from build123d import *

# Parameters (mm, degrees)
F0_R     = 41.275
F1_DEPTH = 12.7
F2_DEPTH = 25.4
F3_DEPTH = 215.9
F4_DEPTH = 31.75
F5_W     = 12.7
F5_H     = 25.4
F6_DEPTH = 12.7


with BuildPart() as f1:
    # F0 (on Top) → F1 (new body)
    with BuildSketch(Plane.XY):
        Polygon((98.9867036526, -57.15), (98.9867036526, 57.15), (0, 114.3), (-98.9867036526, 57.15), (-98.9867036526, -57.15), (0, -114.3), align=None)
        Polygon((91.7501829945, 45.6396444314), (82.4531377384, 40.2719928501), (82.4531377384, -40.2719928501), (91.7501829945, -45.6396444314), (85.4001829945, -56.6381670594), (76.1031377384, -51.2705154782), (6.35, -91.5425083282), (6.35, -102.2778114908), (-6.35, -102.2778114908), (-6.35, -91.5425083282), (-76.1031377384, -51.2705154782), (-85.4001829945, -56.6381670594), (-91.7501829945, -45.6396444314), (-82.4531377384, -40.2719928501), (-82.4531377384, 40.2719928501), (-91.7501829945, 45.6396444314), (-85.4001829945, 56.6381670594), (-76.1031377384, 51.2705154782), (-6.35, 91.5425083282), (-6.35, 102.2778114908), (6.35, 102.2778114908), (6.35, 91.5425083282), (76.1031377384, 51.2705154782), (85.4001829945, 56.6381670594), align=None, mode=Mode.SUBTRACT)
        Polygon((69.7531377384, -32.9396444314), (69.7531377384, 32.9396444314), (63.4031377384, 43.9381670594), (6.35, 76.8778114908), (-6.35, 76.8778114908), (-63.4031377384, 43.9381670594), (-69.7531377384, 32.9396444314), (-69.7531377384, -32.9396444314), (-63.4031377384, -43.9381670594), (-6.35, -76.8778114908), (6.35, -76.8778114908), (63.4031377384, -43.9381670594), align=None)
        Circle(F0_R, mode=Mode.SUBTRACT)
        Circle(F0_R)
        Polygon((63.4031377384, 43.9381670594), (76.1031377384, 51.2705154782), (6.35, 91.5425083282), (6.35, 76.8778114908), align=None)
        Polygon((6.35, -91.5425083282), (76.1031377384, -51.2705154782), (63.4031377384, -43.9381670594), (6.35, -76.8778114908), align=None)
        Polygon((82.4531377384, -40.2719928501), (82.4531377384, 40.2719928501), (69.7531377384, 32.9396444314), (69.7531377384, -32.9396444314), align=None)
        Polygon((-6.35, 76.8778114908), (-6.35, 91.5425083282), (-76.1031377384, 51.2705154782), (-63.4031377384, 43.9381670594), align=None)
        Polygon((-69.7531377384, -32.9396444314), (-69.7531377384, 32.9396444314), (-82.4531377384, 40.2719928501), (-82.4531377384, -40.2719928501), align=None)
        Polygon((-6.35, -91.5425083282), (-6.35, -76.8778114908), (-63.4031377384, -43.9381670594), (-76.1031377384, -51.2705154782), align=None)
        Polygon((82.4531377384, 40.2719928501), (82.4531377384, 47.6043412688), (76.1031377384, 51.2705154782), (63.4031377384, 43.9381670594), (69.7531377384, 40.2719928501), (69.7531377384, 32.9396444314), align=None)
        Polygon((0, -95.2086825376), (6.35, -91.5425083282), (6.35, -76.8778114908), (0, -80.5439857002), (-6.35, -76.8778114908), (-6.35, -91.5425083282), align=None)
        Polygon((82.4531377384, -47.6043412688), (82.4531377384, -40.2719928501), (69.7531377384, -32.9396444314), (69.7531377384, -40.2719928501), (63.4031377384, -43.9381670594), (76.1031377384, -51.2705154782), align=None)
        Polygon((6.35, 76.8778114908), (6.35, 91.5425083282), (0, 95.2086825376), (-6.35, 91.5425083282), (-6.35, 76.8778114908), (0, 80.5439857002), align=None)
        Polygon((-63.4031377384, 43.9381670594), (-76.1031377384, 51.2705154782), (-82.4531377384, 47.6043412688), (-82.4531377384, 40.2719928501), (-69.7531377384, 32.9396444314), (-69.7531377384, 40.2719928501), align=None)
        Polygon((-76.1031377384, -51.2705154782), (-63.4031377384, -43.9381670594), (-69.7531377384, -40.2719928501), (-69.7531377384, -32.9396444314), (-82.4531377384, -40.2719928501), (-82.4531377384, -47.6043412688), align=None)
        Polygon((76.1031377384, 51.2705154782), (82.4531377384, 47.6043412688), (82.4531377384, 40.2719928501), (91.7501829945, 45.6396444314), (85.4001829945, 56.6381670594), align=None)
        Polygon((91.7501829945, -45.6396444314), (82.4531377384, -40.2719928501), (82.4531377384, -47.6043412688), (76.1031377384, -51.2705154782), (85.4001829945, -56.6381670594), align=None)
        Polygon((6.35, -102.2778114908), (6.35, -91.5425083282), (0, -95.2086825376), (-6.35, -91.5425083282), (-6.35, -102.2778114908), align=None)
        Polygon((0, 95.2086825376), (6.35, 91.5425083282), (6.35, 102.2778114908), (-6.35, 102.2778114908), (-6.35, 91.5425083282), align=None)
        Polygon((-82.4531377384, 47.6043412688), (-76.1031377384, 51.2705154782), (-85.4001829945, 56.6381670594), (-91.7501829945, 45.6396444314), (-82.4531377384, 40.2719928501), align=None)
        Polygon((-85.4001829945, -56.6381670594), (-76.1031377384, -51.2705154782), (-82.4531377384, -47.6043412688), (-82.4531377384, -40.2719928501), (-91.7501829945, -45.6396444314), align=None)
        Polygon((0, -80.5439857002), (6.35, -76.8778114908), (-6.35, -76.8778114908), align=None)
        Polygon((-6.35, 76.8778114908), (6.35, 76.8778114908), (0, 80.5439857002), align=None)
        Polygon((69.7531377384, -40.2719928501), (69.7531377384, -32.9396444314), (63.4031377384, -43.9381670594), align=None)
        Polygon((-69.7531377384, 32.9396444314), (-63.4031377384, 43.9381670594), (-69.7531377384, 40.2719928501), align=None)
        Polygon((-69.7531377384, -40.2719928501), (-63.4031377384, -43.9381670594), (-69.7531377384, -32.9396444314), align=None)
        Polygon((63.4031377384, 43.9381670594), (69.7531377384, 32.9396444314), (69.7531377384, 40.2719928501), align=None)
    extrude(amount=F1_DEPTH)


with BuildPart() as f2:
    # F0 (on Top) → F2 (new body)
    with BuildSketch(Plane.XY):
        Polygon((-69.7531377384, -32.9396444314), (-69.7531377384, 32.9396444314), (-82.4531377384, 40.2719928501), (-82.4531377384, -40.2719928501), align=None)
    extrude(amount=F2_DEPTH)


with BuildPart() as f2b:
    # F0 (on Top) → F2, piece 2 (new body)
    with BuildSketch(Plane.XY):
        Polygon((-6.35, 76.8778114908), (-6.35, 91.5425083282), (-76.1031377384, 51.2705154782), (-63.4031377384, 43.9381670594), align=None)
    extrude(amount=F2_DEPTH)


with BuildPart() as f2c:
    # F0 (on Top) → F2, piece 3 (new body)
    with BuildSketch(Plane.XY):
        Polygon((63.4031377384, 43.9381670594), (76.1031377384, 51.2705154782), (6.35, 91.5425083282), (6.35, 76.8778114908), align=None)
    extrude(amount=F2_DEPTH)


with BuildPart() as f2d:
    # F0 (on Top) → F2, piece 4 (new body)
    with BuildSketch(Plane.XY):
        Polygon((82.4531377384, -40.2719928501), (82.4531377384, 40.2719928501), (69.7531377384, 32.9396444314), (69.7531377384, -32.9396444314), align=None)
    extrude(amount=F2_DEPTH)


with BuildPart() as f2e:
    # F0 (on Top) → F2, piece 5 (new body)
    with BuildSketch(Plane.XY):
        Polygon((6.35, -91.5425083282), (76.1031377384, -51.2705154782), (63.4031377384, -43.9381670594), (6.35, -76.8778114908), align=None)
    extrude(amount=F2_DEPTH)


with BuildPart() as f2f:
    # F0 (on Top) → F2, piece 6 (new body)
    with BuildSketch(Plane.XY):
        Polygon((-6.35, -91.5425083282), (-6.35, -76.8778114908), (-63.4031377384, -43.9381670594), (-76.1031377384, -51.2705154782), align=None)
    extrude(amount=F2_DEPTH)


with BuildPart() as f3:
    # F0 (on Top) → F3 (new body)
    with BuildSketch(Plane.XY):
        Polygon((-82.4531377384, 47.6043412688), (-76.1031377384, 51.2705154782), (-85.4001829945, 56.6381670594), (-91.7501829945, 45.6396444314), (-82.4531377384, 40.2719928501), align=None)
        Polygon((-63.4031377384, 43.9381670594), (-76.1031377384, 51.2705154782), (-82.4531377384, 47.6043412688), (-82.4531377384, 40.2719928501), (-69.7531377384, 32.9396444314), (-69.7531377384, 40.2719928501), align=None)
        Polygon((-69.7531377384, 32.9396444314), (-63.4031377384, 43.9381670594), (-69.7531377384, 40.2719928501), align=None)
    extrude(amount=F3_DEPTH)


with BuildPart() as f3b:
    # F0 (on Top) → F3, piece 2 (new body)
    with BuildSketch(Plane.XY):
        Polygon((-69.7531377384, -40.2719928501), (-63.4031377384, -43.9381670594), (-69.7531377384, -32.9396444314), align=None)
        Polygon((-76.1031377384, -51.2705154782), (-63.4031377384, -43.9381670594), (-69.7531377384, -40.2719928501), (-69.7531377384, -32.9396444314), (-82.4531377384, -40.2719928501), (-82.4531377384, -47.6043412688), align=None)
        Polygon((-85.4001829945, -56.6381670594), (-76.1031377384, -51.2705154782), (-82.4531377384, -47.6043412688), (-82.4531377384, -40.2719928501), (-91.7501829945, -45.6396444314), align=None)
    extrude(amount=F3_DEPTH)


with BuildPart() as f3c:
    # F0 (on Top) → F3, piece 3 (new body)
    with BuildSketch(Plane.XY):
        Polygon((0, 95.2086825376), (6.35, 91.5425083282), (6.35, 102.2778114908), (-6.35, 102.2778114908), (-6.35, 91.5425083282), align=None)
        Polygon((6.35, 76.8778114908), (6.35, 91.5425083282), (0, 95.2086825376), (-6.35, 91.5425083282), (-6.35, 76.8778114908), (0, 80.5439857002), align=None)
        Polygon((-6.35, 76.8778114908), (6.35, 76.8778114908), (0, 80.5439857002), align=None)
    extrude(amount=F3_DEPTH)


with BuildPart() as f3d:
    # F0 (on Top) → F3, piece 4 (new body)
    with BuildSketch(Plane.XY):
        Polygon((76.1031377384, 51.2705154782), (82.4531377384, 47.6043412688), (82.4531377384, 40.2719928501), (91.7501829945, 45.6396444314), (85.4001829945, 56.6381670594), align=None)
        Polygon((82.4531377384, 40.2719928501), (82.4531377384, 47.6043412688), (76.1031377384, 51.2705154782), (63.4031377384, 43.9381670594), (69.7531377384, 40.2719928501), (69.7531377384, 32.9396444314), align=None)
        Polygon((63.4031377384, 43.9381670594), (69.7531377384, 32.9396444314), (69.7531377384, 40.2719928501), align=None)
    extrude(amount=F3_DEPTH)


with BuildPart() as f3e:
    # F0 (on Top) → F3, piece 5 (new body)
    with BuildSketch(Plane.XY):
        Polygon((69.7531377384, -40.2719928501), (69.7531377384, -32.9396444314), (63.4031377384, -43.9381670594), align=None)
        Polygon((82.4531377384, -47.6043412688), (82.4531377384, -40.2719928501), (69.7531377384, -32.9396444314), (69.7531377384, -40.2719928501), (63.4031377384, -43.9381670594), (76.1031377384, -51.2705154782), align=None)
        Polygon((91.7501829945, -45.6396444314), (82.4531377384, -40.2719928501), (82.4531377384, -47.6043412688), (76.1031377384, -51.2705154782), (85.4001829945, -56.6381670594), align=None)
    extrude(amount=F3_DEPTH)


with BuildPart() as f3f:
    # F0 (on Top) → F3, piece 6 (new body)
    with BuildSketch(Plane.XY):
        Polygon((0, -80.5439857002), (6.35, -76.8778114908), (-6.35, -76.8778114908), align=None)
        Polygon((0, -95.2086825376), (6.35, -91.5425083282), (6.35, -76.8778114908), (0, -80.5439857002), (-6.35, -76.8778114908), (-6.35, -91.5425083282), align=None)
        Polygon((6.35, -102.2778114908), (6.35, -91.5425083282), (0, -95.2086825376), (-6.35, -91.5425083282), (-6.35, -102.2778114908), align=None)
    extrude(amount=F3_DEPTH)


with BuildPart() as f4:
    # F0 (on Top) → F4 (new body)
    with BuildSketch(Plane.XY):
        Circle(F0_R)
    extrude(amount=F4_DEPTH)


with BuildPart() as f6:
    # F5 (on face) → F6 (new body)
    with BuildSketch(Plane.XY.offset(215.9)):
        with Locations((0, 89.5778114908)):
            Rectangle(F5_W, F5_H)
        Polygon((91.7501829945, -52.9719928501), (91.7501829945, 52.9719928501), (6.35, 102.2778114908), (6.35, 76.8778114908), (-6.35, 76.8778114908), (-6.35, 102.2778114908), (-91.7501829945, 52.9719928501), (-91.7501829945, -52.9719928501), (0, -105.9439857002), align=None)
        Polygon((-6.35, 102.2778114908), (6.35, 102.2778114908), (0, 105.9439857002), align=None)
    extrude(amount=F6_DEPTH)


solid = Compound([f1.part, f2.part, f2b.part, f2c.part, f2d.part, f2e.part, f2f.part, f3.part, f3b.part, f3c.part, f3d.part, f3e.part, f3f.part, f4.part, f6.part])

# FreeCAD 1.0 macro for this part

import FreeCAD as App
import Part
import Sketcher

V = App.Vector
Q = App.Units.Quantity


def add_polygon(sketch, points):
    """Adds a closed chain of lines whose ends are joined by coincident constraints."""
    first, n = sketch.GeometryCount, len(points)
    for a, b in zip(points, points[1:] + points[:1]):
        sketch.addGeometry(Part.LineSegment(App.Vector(*a, 0), App.Vector(*b, 0)), False)
    for i in range(n):
        sketch.addConstraint(Sketcher.Constraint("Coincident", first + i, 2, first + (i + 1) % n, 1))

doc = App.newDocument("Part")
body = doc.addObject("PartDesign::Body", "Body")

sketch1 = doc.addObject("Sketcher::SketchObject", "Sketch")
body.addObject(sketch1)
sketch1.AttachmentSupport = (doc.XY_Plane, [""])
sketch1.MapMode = "FlatFace"
add_polygon(sketch1, [(99, -57), (99, 57), (0, 114), (-99, 57), (-99, -57), (0, -114)])
sketch1.addConstraint([
    Sketcher.Constraint("Vertical", 0),
    Sketcher.Constraint("Vertical", 3),
    Sketcher.Constraint("Symmetric", 0, 2, 3, 2, -1, 1),
    Sketcher.Constraint("Symmetric", 1, 2, 4, 2, -1, 1),
    Sketcher.Constraint("PointOnObject", 1, 2, -2),
    Sketcher.Constraint("Parallel", 2, 5),
    Sketcher.Constraint("Horizontal", 0, 2, 2, 2),
    Sketcher.Constraint("DistanceY", 0, 1, 0, 2, Q("4.5 in")),
    Sketcher.Constraint("Angle", 1, Q("150 deg")),
    Sketcher.Constraint("DistanceY", 4, 2, 1, 2, Q("9 in")),
])
pad1 = doc.addObject("PartDesign::Pad", "Pad")
body.addObject(pad1)
pad1.Profile = sketch1
pad1.Length = Q("0.5 in")
body2 = doc.addObject("PartDesign::Body", "Body001")

sketch2 = doc.addObject("Sketcher::SketchObject", "Sketch001")
body2.addObject(sketch2)
sketch2.AttachmentSupport = (doc.getObject("XY_Plane001"), [""])
sketch2.MapMode = "FlatFace"
add_polygon(sketch2, [(-70, -33), (-70, 33), (-82, 40), (-82, -40)])
sketch2.addConstraint([
    Sketcher.Constraint("Vertical", 0),
    Sketcher.Constraint("Vertical", 2),
    Sketcher.Constraint("Equal", 1, 3),
    Sketcher.Constraint("Angle", 1, Q("150 deg")),
    Sketcher.Constraint("DistanceX", 1, 2, 0, 2, Q("0.5 in")),
    Sketcher.Constraint("DistanceY", 0, 1, 0, 2, 65.879289),
    Sketcher.Constraint("DistanceX", 0, 2, -1, 1, 69.753138),
    Sketcher.Constraint("DistanceY", -1, 1, 0, 2, 32.939644),
])
pad2 = doc.addObject("PartDesign::Pad", "Pad001")
body2.addObject(pad2)
pad2.Profile = sketch2
pad2.Length = Q("1 in")
body3 = doc.addObject("PartDesign::Body", "Body002")

sketch3 = doc.addObject("Sketcher::SketchObject", "Sketch002")
body3.addObject(sketch3)
sketch3.AttachmentSupport = (doc.getObject("XY_Plane002"), [""])
sketch3.MapMode = "FlatFace"
add_polygon(sketch3, [(-6, 77), (-6, 92), (-76, 51), (-63, 44)])
sketch3.addConstraint([
    Sketcher.Constraint("Vertical", 0),
    Sketcher.Constraint("Parallel", 1, 3),
    Sketcher.Constraint("Angle", 1, Q("-150 deg")),
    Sketcher.Constraint("Angle", 2, Q("-30 deg")),
    Sketcher.Constraint("DistanceX", 1, 2, 2, 2, Q("0.5 in")),
    Sketcher.Constraint("DistanceX", 0, 2, -1, 1, Q("0.25 in")),
    Sketcher.Constraint("Distance", 3, 65.879289),
    Sketcher.Constraint("DistanceY", -1, 1, 0, 2, 91.542508),
])
pad3 = doc.addObject("PartDesign::Pad", "Pad002")
body3.addObject(pad3)
pad3.Profile = sketch3
pad3.Length = Q("1 in")
body4 = doc.addObject("PartDesign::Body", "Body003")

sketch4 = doc.addObject("Sketcher::SketchObject", "Sketch003")
body4.addObject(sketch4)
sketch4.AttachmentSupport = (doc.getObject("XY_Plane003"), [""])
sketch4.MapMode = "FlatFace"
add_polygon(sketch4, [(63, 44), (76, 51), (6, 92), (6, 77)])
sketch4.addConstraint([
    Sketcher.Constraint("Vertical", 2),
    Sketcher.Constraint("Parallel", 1, 3),
    Sketcher.Constraint("Angle", 0, Q("30 deg")),
    Sketcher.Constraint("Angle", 1, Q("150 deg")),
    Sketcher.Constraint("DistanceX", 3, 2, 0, 2, Q("0.5 in")),
    Sketcher.Constraint("DistanceX", -1, 1, 1, 2, Q("0.25 in")),
    Sketcher.Constraint("Distance", 3, 65.879289),
    Sketcher.Constraint("DistanceY", -1, 1, 1, 2, 91.542508),
])
pad4 = doc.addObject("PartDesign::Pad", "Pad003")
body4.addObject(pad4)
pad4.Profile = sketch4
pad4.Length = Q("1 in")
body5 = doc.addObject("PartDesign::Body", "Body004")

sketch5 = doc.addObject("Sketcher::SketchObject", "Sketch004")
body5.addObject(sketch5)
sketch5.AttachmentSupport = (doc.getObject("XY_Plane004"), [""])
sketch5.MapMode = "FlatFace"
add_polygon(sketch5, [(82, -40), (82, 40), (70, 33), (70, -33)])
sketch5.addConstraint([
    Sketcher.Constraint("Vertical", 0),
    Sketcher.Constraint("Vertical", 2),
    Sketcher.Constraint("Equal", 1, 3),
    Sketcher.Constraint("Angle", 1, Q("-150 deg")),
    Sketcher.Constraint("DistanceX", 1, 2, 0, 2, Q("0.5 in")),
    Sketcher.Constraint("DistanceY", 2, 2, 2, 1, 65.879289),
    Sketcher.Constraint("DistanceX", -1, 1, 0, 2, 82.453138),
    Sketcher.Constraint("DistanceY", -1, 1, 0, 2, 40.271993),
])
pad5 = doc.addObject("PartDesign::Pad", "Pad004")
body5.addObject(pad5)
pad5.Profile = sketch5
pad5.Length = Q("1 in")
body6 = doc.addObject("PartDesign::Body", "Body005")

sketch6 = doc.addObject("Sketcher::SketchObject", "Sketch005")
body6.addObject(sketch6)
sketch6.AttachmentSupport = (doc.getObject("XY_Plane005"), [""])
sketch6.MapMode = "FlatFace"
add_polygon(sketch6, [(6, -92), (76, -51), (63, -44), (6, -77)])
sketch6.addConstraint([
    Sketcher.Constraint("Vertical", 3),
    Sketcher.Constraint("Parallel", 0, 2),
    Sketcher.Constraint("Angle", 0, Q("30 deg")),
    Sketcher.Constraint("Angle", 1, Q("150 deg")),
    Sketcher.Constraint("DistanceX", 1, 2, 0, 2, Q("0.5 in")),
    Sketcher.Constraint("DistanceX", -1, 1, 2, 2, Q("0.25 in")),
    Sketcher.Constraint("Distance", 2, 65.879289),
    Sketcher.Constraint("DistanceY", 2, 2, -1, 1, 76.877811),
])
pad6 = doc.addObject("PartDesign::Pad", "Pad005")
body6.addObject(pad6)
pad6.Profile = sketch6
pad6.Length = Q("1 in")
body7 = doc.addObject("PartDesign::Body", "Body006")

sketch7 = doc.addObject("Sketcher::SketchObject", "Sketch006")
body7.addObject(sketch7)
sketch7.AttachmentSupport = (doc.getObject("XY_Plane006"), [""])
sketch7.MapMode = "FlatFace"
add_polygon(sketch7, [(-6, -92), (-6, -77), (-63, -44), (-76, -51)])
sketch7.addConstraint([
    Sketcher.Constraint("Vertical", 0),
    Sketcher.Constraint("Parallel", 1, 3),
    Sketcher.Constraint("Angle", 1, Q("150 deg")),
    Sketcher.Constraint("Angle", 2, Q("-150 deg")),
    Sketcher.Constraint("DistanceX", 2, 2, 1, 2, Q("0.5 in")),
    Sketcher.Constraint("DistanceX", 0, 2, -1, 1, Q("0.25 in")),
    Sketcher.Constraint("Distance", 1, 65.879289),
    Sketcher.Constraint("DistanceY", 0, 2, -1, 1, 76.877811),
])
pad7 = doc.addObject("PartDesign::Pad", "Pad006")
body7.addObject(pad7)
pad7.Profile = sketch7
pad7.Length = Q("1 in")
body8 = doc.addObject("PartDesign::Body", "Body007")

sketch8 = doc.addObject("Sketcher::SketchObject", "Sketch007")
body8.addObject(sketch8)
sketch8.AttachmentSupport = (doc.getObject("XY_Plane007"), [""])
sketch8.MapMode = "FlatFace"
add_polygon(sketch8, [(-76, 51), (-85, 57), (-92, 46), (-82, 40), (-70, 33), (-63, 44)])
sketch8.addConstraint([
    Sketcher.Constraint("Perpendicular", 0, 1),
    Sketcher.Constraint("Perpendicular", 1, 2),
    Sketcher.Constraint("Parallel", 2, 3),
    Sketcher.Constraint("Perpendicular", 3, 4),
    Sketcher.Constraint("Perpendicular", 4, 5),
    Sketcher.Constraint("Equal", 0, 2),
    Sketcher.Constraint("Angle", 0, Q("150 deg")),
    Sketcher.Constraint("Distance", 1, Q("0.5 in")),
    Sketcher.Constraint("DistanceX", 2, 2, 3, 2, Q("0.5 in")),
    Sketcher.Constraint("DistanceY", 3, 2, 1, 2, Q("0.5 in")),
    Sketcher.Constraint("DistanceX", 0, 2, -1, 1, 85.400183),
    Sketcher.Constraint("DistanceY", -1, 1, 0, 2, 56.638167),
])
pad8 = doc.addObject("PartDesign::Pad", "Pad007")
body8.addObject(pad8)
pad8.Profile = sketch8
pad8.Length = Q("8.5 in")
body9 = doc.addObject("PartDesign::Body", "Body008")

sketch9 = doc.addObject("Sketcher::SketchObject", "Sketch008")
body9.addObject(sketch9)
sketch9.AttachmentSupport = (doc.getObject("XY_Plane008"), [""])
sketch9.MapMode = "FlatFace"
add_polygon(sketch9, [(-63, -44), (-70, -33), (-82, -40), (-92, -46), (-85, -57), (-76, -51)])
sketch9.addConstraint([
    Sketcher.Constraint("Perpendicular", 0, 1),
    Sketcher.Constraint("Parallel", 1, 2),
    Sketcher.Constraint("Perpendicular", 2, 3),
    Sketcher.Constraint("Perpendicular", 3, 4),
    Sketcher.Constraint("Parallel", 4, 5),
    Sketcher.Constraint("Equal", 2, 4),
    Sketcher.Constraint("Angle", 0, Q("120 deg")),
    Sketcher.Constraint("Distance", 0, Q("0.5 in")),
    Sketcher.Constraint("DistanceX", 1, 2, 0, 2, Q("0.5 in")),
    Sketcher.Constraint("DistanceY", 2, 2, 0, 2, Q("0.5 in")),
    Sketcher.Constraint("DistanceX", 0, 2, -1, 1, 69.753138),
    Sketcher.Constraint("DistanceY", 0, 2, -1, 1, 32.939644),
])
pad9 = doc.addObject("PartDesign::Pad", "Pad008")
body9.addObject(pad9)
pad9.Profile = sketch9
pad9.Length = Q("8.5 in")
body10 = doc.addObject("PartDesign::Body", "Body009")

sketch10 = doc.addObject("Sketcher::SketchObject", "Sketch009")
body10.addObject(sketch10)
sketch10.AttachmentSupport = (doc.getObject("XY_Plane009"), [""])
sketch10.MapMode = "FlatFace"
add_polygon(sketch10, [(6, 102), (-6, 102), (-6, 77), (6, 77)])
sketch10.addConstraint([
    Sketcher.Constraint("Horizontal", 0),
    Sketcher.Constraint("Vertical", 1),
    Sketcher.Constraint("Horizontal", 2),
    Sketcher.Constraint("Vertical", 3),
    Sketcher.Constraint("DistanceY", 1, 2, 1, 1, Q("1 in")),
    Sketcher.Constraint("DistanceX", 0, 2, 0, 1, Q("0.5 in")),
    Sketcher.Constraint("DistanceX", 0, 2, -1, 1, Q("0.25 in")),
    Sketcher.Constraint("DistanceY", -1, 1, 0, 2, 102.277811),
])
pad10 = doc.addObject("PartDesign::Pad", "Pad009")
body10.addObject(pad10)
pad10.Profile = sketch10
pad10.Length = Q("8.5 in")
body11 = doc.addObject("PartDesign::Body", "Body010")

sketch11 = doc.addObject("Sketcher::SketchObject", "Sketch010")
body11.addObject(sketch11)
sketch11.AttachmentSupport = (doc.getObject("XY_Plane010"), [""])
sketch11.MapMode = "FlatFace"
add_polygon(sketch11, [(82, 40), (92, 46), (85, 57), (76, 51), (63, 44), (70, 33)])
sketch11.addConstraint([
    Sketcher.Constraint("Perpendicular", 0, 1),
    Sketcher.Constraint("Perpendicular", 1, 2),
    Sketcher.Constraint("Parallel", 2, 3),
    Sketcher.Constraint("Perpendicular", 3, 4),
    Sketcher.Constraint("Perpendicular", 4, 5),
    Sketcher.Constraint("Equal", 0, 2),
    Sketcher.Constraint("Angle", 0, Q("30 deg")),
    Sketcher.Constraint("Distance", 1, Q("0.5 in")),
    Sketcher.Constraint("DistanceX", 3, 2, 2, 2, Q("0.5 in")),
    Sketcher.Constraint("DistanceY", 3, 2, 1, 2, Q("0.5 in")),
    Sketcher.Constraint("DistanceX", -1, 1, 0, 2, 91.750183),
    Sketcher.Constraint("DistanceY", -1, 1, 0, 2, 45.639644),
])
pad11 = doc.addObject("PartDesign::Pad", "Pad010")
body11.addObject(pad11)
pad11.Profile = sketch11
pad11.Length = Q("8.5 in")
body12 = doc.addObject("PartDesign::Body", "Body011")

sketch12 = doc.addObject("Sketcher::SketchObject", "Sketch011")
body12.addObject(sketch12)
sketch12.AttachmentSupport = (doc.getObject("XY_Plane011"), [""])
sketch12.MapMode = "FlatFace"
add_polygon(sketch12, [(70, -33), (63, -44), (76, -51), (85, -57), (92, -46), (82, -40)])
sketch12.addConstraint([
    Sketcher.Constraint("Perpendicular", 0, 1),
    Sketcher.Constraint("Parallel", 1, 2),
    Sketcher.Constraint("Perpendicular", 2, 3),
    Sketcher.Constraint("Perpendicular", 3, 4),
    Sketcher.Constraint("Parallel", 4, 5),
    Sketcher.Constraint("Equal", 2, 4),
    Sketcher.Constraint("Angle", 0, Q("-120 deg")),
    Sketcher.Constraint("Distance", 0, Q("0.5 in")),
    Sketcher.Constraint("DistanceX", 0, 2, 1, 2, Q("0.5 in")),
    Sketcher.Constraint("DistanceY", 2, 2, 0, 2, Q("0.5 in")),
    Sketcher.Constraint("DistanceX", -1, 1, 0, 2, 63.403138),
    Sketcher.Constraint("DistanceY", 0, 2, -1, 1, 43.938167),
])
pad12 = doc.addObject("PartDesign::Pad", "Pad011")
body12.addObject(pad12)
pad12.Profile = sketch12
pad12.Length = Q("8.5 in")
body13 = doc.addObject("PartDesign::Body", "Body012")

sketch13 = doc.addObject("Sketcher::SketchObject", "Sketch012")
body13.addObject(sketch13)
sketch13.AttachmentSupport = (doc.getObject("XY_Plane012"), [""])
sketch13.MapMode = "FlatFace"
add_polygon(sketch13, [(6, -77), (-6, -77), (-6, -102), (6, -102)])
sketch13.addConstraint([
    Sketcher.Constraint("Horizontal", 0),
    Sketcher.Constraint("Vertical", 1),
    Sketcher.Constraint("Horizontal", 2),
    Sketcher.Constraint("Vertical", 3),
    Sketcher.Constraint("DistanceY", 1, 2, 1, 1, Q("1 in")),
    Sketcher.Constraint("DistanceX", 0, 2, 0, 1, Q("0.5 in")),
    Sketcher.Constraint("DistanceX", 0, 2, -1, 1, Q("0.25 in")),
    Sketcher.Constraint("DistanceY", 0, 2, -1, 1, 76.877811),
])
pad13 = doc.addObject("PartDesign::Pad", "Pad012")
body13.addObject(pad13)
pad13.Profile = sketch13
pad13.Length = Q("8.5 in")
body14 = doc.addObject("PartDesign::Body", "Body013")

sketch14 = doc.addObject("Sketcher::SketchObject", "Sketch013")
body14.addObject(sketch14)
sketch14.AttachmentSupport = (doc.getObject("XY_Plane013"), [""])
sketch14.MapMode = "FlatFace"
sketch14.addGeometry(Part.Circle(V(0, 0, 0), V(0, 0, 1), 41), False)
sketch14.addConstraint([
    Sketcher.Constraint("Coincident", 0, 3, -1, 1),
    Sketcher.Constraint("Diameter", 0, Q("3.25 in")),
])
pad14 = doc.addObject("PartDesign::Pad", "Pad013")
body14.addObject(pad14)
pad14.Profile = sketch14
pad14.Length = Q("1.25 in")
body15 = doc.addObject("PartDesign::Body", "Body014")

sketch15 = doc.addObject("Sketcher::SketchObject", "Sketch014")
body15.addObject(sketch15)
sketch15.AttachmentSupport = (doc.getObject("XY_Plane014"), [""])
sketch15.MapMode = "FlatFace"
sketch15.AttachmentOffset = App.Placement(V(0, 0, 8.5 * 25.4), App.Rotation())
add_polygon(sketch15, [(-6, 102), (-92, 53), (-92, -53), (0, -106), (92, -53), (92, 53), (6, 102), (0, 106)])
sketch15.addConstraint([
    Sketcher.Constraint("Vertical", 1),
    Sketcher.Constraint("Vertical", 4),
    Sketcher.Constraint("Symmetric", 0, 2, 3, 2, -1, 1),
    Sketcher.Constraint("Symmetric", 2, 2, 6, 2, -1, 1),
    Sketcher.Constraint("Symmetric", 5, 2, 7, 2, -2),
    Sketcher.Constraint("PointOnObject", 2, 2, -2),
    Sketcher.Constraint("Parallel", 0, 3),
    Sketcher.Constraint("Parallel", 2, 5),
    Sketcher.Constraint("Parallel", 5, 6),
    Sketcher.Constraint("Angle", 0, Q("-150 deg")),
    Sketcher.Constraint("DistanceX", 7, 2, 5, 2, Q("0.5 in")),
    Sketcher.Constraint("DistanceY", 1, 2, 1, 1, 105.943986),
    Sketcher.Constraint("DistanceY", -1, 1, 5, 2, 102.277811),
])
pad15 = doc.addObject("PartDesign::Pad", "Pad014")
body15.addObject(pad15)
pad15.Profile = sketch15
pad15.Length = Q("0.5 in")

doc.recompute()
